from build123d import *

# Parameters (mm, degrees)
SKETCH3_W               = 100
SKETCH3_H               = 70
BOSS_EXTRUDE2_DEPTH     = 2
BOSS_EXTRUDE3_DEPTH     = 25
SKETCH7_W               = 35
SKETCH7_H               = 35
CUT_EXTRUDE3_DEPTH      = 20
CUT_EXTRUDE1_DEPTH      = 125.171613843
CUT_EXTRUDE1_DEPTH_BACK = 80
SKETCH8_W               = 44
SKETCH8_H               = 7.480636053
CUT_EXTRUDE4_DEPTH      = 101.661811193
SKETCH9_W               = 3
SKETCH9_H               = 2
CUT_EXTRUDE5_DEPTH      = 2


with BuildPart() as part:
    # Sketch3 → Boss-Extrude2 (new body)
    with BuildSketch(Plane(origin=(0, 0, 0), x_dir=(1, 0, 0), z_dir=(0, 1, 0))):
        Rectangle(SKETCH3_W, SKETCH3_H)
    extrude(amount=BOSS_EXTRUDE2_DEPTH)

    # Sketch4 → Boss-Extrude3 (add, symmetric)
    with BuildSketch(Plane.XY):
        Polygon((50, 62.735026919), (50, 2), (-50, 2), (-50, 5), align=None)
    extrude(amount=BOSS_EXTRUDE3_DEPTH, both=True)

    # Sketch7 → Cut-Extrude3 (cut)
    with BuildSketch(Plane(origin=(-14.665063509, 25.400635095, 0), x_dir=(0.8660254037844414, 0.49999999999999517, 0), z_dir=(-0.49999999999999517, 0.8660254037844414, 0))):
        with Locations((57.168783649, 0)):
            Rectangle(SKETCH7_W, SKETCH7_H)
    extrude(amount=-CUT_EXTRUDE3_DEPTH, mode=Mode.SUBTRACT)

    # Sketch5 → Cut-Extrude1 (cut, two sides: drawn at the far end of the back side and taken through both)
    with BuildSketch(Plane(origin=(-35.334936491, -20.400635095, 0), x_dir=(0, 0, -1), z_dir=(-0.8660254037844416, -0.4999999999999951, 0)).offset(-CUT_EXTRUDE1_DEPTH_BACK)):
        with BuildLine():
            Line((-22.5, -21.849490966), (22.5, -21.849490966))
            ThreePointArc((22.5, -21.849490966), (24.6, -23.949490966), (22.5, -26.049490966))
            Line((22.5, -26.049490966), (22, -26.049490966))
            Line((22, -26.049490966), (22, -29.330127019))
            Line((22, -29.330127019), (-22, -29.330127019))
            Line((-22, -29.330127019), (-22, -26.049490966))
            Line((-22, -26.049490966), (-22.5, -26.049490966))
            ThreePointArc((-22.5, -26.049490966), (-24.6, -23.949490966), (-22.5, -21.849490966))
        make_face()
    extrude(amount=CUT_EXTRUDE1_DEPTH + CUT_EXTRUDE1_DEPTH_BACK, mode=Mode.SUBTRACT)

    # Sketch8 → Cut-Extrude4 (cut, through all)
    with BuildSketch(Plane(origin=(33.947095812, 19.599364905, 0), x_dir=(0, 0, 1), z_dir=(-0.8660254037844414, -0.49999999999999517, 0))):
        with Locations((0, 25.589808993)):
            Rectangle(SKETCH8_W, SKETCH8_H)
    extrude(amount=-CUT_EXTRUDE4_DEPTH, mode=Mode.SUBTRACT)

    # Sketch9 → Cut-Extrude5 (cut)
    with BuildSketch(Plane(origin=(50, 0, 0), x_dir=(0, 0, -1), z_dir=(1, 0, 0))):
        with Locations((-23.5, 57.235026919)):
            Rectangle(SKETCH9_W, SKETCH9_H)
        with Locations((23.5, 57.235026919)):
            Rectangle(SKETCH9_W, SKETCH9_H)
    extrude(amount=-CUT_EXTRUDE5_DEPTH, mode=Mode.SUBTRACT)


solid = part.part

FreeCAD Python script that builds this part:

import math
import FreeCAD as App
import Part
import Sketcher

V = App.Vector
Q = App.Units.Quantity


def add_polygon(sketch, points):
    """Adds a closed chain of lines whose ends are joined by coincident constraints."""
    first, n = sketch.GeometryCount, len(points)
    for a, b in zip(points, points[1:] + points[:1]):
        sketch.addGeometry(Part.LineSegment(App.Vector(*a, 0), App.Vector(*b, 0)), False)
    for i in range(n):
        sketch.addConstraint(Sketcher.Constraint("Coincident", first + i, 2, first + (i + 1) % n, 1))

doc = App.newDocument("Part")
body = doc.addObject("PartDesign::Body", "Body")

sketch1 = doc.addObject("Sketcher::SketchObject", "Sketch")
body.addObject(sketch1)
sketch1.AttachmentSupport = (doc.XZ_Plane, [""])
sketch1.MapMode = "FlatFace"
add_polygon(sketch1, [(-50, -35), (-50, 35), (50, 35), (50, -35)])
sketch1.addConstraint([
    Sketcher.Constraint("Vertical", 0),
    Sketcher.Constraint("Horizontal", 1),
    Sketcher.Constraint("Vertical", 2),
    Sketcher.Constraint("Horizontal", 3),
    Sketcher.Constraint("Symmetric", 0, 2, 2, 2, -1, 1),
    Sketcher.Constraint("DistanceX", 1, 1, 1, 2, Q("100 mm")),
    Sketcher.Constraint("DistanceY", 0, 1, 0, 2, Q("70 mm")),
])
pad1 = doc.addObject("PartDesign::Pad", "Pad")
body.addObject(pad1)
pad1.Profile = sketch1
pad1.Length = 2
pad1.Reversed = True

sketch2 = doc.addObject("Sketcher::SketchObject", "Sketch001")
body.addObject(sketch2)
sketch2.AttachmentSupport = (doc.XY_Plane, [""])
sketch2.MapMode = "FlatFace"
add_polygon(sketch2, [(50, 2), (50, 62.7), (-50, 5), (-50, 2)])
sketch2.addConstraint([
    Sketcher.Constraint("Vertical", 0),
    Sketcher.Constraint("Vertical", 2),
    Sketcher.Constraint("Horizontal", 3),
    Sketcher.Constraint("DistanceX", 3, 1, 3, 2, Q("100 mm")),
    Sketcher.Constraint("DistanceY", 2, 2, 2, 1, Q("3 mm")),
    Sketcher.Constraint("Angle", 1, Q("-150 deg")),
    Sketcher.Constraint("DistanceX", -1, 1, 0, 2, Q("50 mm")),
    Sketcher.Constraint("DistanceY", -1, 1, 1, 2, Q("5 mm")),
])
pad2 = doc.addObject("PartDesign::Pad", "Pad001")
body.addObject(pad2)
pad2.Profile = sketch2
pad2.Length = 50
pad2.Midplane = True

sketch3 = doc.addObject("Sketcher::SketchObject", "Sketch002")
body.addObject(sketch3)
sketch3.Placement = App.Placement(V(-14.665064, 25.400635, 0), App.Rotation(V(0.866025404, 0.5, 0), V(0, 0, -1), V(-0.5, 0.866025404, 0), "ZXY"))
add_polygon(sketch3, [(40, 18), (40, -18), (75, -18), (75, 18)])
sketch3.addConstraint([
    Sketcher.Constraint("Vertical", 0),
    Sketcher.Constraint("Horizontal", 1),
    Sketcher.Constraint("Vertical", 2),
    Sketcher.Constraint("Horizontal", 3),
    Sketcher.Constraint("Equal", 3, 0),
    Sketcher.Constraint("DistanceX", 1, 1, 1, 2, Q("35 mm")),
    Sketcher.Constraint("DistanceY", 0, 2, -1, 1, Q("17.5 mm")),
    Sketcher.Constraint("DistanceX", -1, 1, 0, 2, Q("39.668784 mm")),
])
pocket1 = doc.addObject("PartDesign::Pocket", "Pocket")
body.addObject(pocket1)
pocket1.Profile = sketch3
pocket1.Length = 20

sketch4 = doc.addObject("Sketcher::SketchObject", "Sketch003")
body.addObject(sketch4)
sketch4.Placement = App.Placement(V(-35.334937, -20.400635, 0), App.Rotation(V(0, 0, -1), V(0.5, -0.866025404, 0), V(-0.866025404, -0.5, 0), "ZXY"))
sketch4.addGeometry([
    Part.LineSegment(V(22.5, -21.8, 0), V(-22.5, -21.8, 0)),
    Part.ArcOfCircle(Part.Circle(V(-22.5, -23.9, 0), V(0, 0, 1), 2.1), math.radians(90), math.radians(270)),
    Part.LineSegment(V(-22.5, -26, 0), V(-22, -26, 0)),
    Part.LineSegment(V(-22, -26, 0), V(-22, -29.3, 0)),
    Part.LineSegment(V(-22, -29.3, 0), V(22, -29.3, 0)),
    Part.LineSegment(V(22, -29.3, 0), V(22, -26, 0)),
    Part.LineSegment(V(22, -26, 0), V(22.5, -26, 0)),
    Part.ArcOfCircle(Part.Circle(V(22.5, -23.9, 0), V(0, 0, 1), 2.1), math.radians(-90), math.radians(90)),
], False)
sketch4.addConstraint([
    Sketcher.Constraint("Tangent", 0, 2, 1, 1),
    Sketcher.Constraint("Tangent", 1, 2, 2, 1),
    Sketcher.Constraint("Coincident", 2, 2, 3, 1),
    Sketcher.Constraint("Coincident", 3, 2, 4, 1),
    Sketcher.Constraint("Coincident", 4, 2, 5, 1),
    Sketcher.Constraint("Coincident", 5, 2, 6, 1),
    Sketcher.Constraint("Tangent", 6, 2, 7, 1),
    Sketcher.Constraint("Tangent", 7, 2, 0, 1),
    Sketcher.Constraint("Horizontal", 0),
    Sketcher.Constraint("Horizontal", 2),
    Sketcher.Constraint("Vertical", 3),
    Sketcher.Constraint("Horizontal", 4),
    Sketcher.Constraint("Vertical", 5),
    Sketcher.Constraint("Horizontal", 6),
    Sketcher.Constraint("Equal", 1, 7),
    Sketcher.Constraint("Equal", 2, 6),
    Sketcher.Constraint("Radius", 1, Q("2.1 mm")),
    Sketcher.Constraint("DistanceX", 0, 2, 0, 1, Q("45 mm")),
    Sketcher.Constraint("DistanceX", 4, 1, 4, 2, Q("44 mm")),
    Sketcher.Constraint("DistanceX", 2, 2, -1, 1, Q("22 mm")),
    Sketcher.Constraint("DistanceY", 3, 2, 3, 1, Q("3.280636 mm")),
    Sketcher.Constraint("DistanceY", 1, 3, -1, 1, Q("23.949491 mm")),
])
pocket2 = doc.addObject("PartDesign::Pocket", "Pocket001")
body.addObject(pocket2)
pocket2.Profile = sketch4
pocket2.Type = "TwoLengths"
pocket2.Length = 125.171614
pocket2.Length2 = 80
pocket2.Reversed = True

sketch5 = doc.addObject("Sketcher::SketchObject", "Sketch004")
body.addObject(sketch5)
sketch5.Placement = App.Placement(V(33.947096, 19.599365, 0), App.Rotation(V(0, 0, 1), V(-0.5, 0.866025404, 0), V(-0.866025404, -0.5, 0), "ZXY"))
add_polygon(sketch5, [(-22, 29), (-22, 22), (22, 22), (22, 29)])
sketch5.addConstraint([
    Sketcher.Constraint("Vertical", 0),
    Sketcher.Constraint("Horizontal", 1),
    Sketcher.Constraint("Vertical", 2),
    Sketcher.Constraint("Horizontal", 3),
    Sketcher.Constraint("DistanceX", 1, 1, 1, 2, Q("44 mm")),
    Sketcher.Constraint("DistanceX", 0, 2, -1, 1, Q("22 mm")),
    Sketcher.Constraint("DistanceY", 0, 2, 0, 1, Q("7.480636 mm")),
    Sketcher.Constraint("DistanceY", -1, 1, 0, 2, Q("21.849491 mm")),
])
pocket3 = doc.addObject("PartDesign::Pocket", "Pocket002")
body.addObject(pocket3)
pocket3.Profile = sketch5
pocket3.Type = "ThroughAll"

sketch6 = doc.addObject("Sketcher::SketchObject", "Sketch005")
body.addObject(sketch6)
sketch6.AttachmentSupport = (doc.YZ_Plane, [""])
sketch6.MapMode = "FlatFace"
sketch6.AttachmentOffset = App.Placement(V(0, 0, 50), App.Rotation())
add_polygon(sketch6, [(58.2, 25), (56.2, 25), (56.2, 22), (58.2, 22)])
add_polygon(sketch6, [(58.2, -22), (56.2, -22), (56.2, -25), (58.2, -25)])
sketch6.addConstraint([
    Sketcher.Constraint("Horizontal", 0),
    Sketcher.Constraint("Vertical", 1),
    Sketcher.Constraint("Horizontal", 2),
    Sketcher.Constraint("Vertical", 3),
    Sketcher.Constraint("Horizontal", 4),
    Sketcher.Constraint("Vertical", 5),
    Sketcher.Constraint("Horizontal", 6),
    Sketcher.Constraint("Vertical", 7),
    Sketcher.Constraint("Symmetric", 1, 2, 4, 2, -1),
    Sketcher.Constraint("Symmetric", 3, 2, 6, 2, -1),
    Sketcher.Constraint("DistanceX", 0, 2, 0, 1, Q("2 mm")),
    Sketcher.Constraint("DistanceY", 1, 2, 1, 1, Q("3 mm")),
    Sketcher.Constraint("DistanceY", -1, 1, 0, 2, Q("25 mm")),
    Sketcher.Constraint("DistanceX", -1, 1, 0, 2, Q("56.235027 mm")),
])
pocket4 = doc.addObject("PartDesign::Pocket", "Pocket003")
body.addObject(pocket4)
pocket4.Profile = sketch6
pocket4.Length = 2

doc.recompute()
